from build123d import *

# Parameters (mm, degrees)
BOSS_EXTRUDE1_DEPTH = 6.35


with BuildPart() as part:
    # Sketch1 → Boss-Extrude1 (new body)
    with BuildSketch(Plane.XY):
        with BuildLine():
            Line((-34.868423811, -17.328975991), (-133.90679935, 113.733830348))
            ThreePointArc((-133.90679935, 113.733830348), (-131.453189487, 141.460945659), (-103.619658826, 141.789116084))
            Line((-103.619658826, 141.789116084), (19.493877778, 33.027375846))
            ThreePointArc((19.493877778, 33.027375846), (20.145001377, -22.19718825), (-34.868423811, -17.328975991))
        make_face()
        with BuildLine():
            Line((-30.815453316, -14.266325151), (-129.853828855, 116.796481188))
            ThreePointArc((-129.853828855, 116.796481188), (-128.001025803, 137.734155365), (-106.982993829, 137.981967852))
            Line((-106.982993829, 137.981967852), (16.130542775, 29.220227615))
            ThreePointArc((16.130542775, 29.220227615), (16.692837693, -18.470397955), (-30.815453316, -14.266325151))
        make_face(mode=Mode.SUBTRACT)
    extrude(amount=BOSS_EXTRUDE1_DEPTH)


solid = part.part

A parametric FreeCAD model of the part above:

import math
import FreeCAD as App
import Part
import Sketcher
from FreeCAD import Vector
Q = App.Units.Quantity

doc = App.newDocument("Part")
body = doc.addObject("PartDesign::Body", "Body")

# Sketch on XY plane
sketch1 = body.newObject("Sketcher::SketchObject", "Sketch")
sketch1.AttachmentSupport = (doc.getObject("XY_Plane"), [""])
sketch1.MapMode = "FlatFace"
sketch1.addGeometry(Part.LineSegment(Vector(-134, 114, 0), Vector(-35, -17, 0)), False)
sketch1.addGeometry(Part.ArcOfCircle(Part.Circle(Vector(-5, 5, 0), Vector(0, 0, 1), 37), math.radians(-143), math.radians(49)), False)
sketch1.addGeometry(Part.LineSegment(Vector(19, 33, 0), Vector(-104, 142, 0)), False)
sketch1.addGeometry(Part.ArcOfCircle(Part.Circle(Vector(-117, 126, 0), Vector(0, 0, 1), 21), math.radians(49), math.radians(217)), False)
sketch1.addGeometry(Part.LineSegment(Vector(-31, -14, 0), Vector(-130, 117, 0)), False)
sketch1.addGeometry(Part.ArcOfCircle(Part.Circle(Vector(-117, 126, 0), Vector(0, 0, 1), 16), math.radians(49), math.radians(217)), False)
sketch1.addGeometry(Part.LineSegment(Vector(-107, 138, 0), Vector(16, 29, 0)), False)
sketch1.addGeometry(Part.ArcOfCircle(Part.Circle(Vector(-5, 5, 0), Vector(0, 0, 1), 32), math.radians(-143), math.radians(49)), False)
sketch1.addConstraint(Sketcher.Constraint("Tangent", 0, 2, 1, 1))
sketch1.addConstraint(Sketcher.Constraint("Tangent", 1, 2, 2, 1))
sketch1.addConstraint(Sketcher.Constraint("Tangent", 2, 2, 3, 1))
sketch1.addConstraint(Sketcher.Constraint("Tangent", 3, 2, 0, 1))
sketch1.addConstraint(Sketcher.Constraint("Tangent", 4, 2, 5, 2))
sketch1.addConstraint(Sketcher.Constraint("Tangent", 5, 1, 6, 1))
sketch1.addConstraint(Sketcher.Constraint("Tangent", 6, 2, 7, 2))
sketch1.addConstraint(Sketcher.Constraint("Tangent", 7, 1, 4, 1))
sketch1.addConstraint(Sketcher.Constraint("Coincident", 5, 3, 3, 3))
sketch1.addConstraint(Sketcher.Constraint("Coincident", 7, 3, 1, 3))
sketch1.addConstraint(Sketcher.Constraint("Parallel", 0, 4))
sketch1.addConstraint(Sketcher.Constraint("Radius", 3, Q("20.746 mm")))
sketch1.addConstraint(Sketcher.Constraint("Radius", 5, Q("15.666 mm")))
sketch1.addConstraint(Sketcher.Constraint("Radius", 1, Q("37.236936 mm")))
sketch1.addConstraint(Sketcher.Constraint("DistanceX", 3, 2, -1, 1, Q("133.906799 mm")))
sketch1.addConstraint(Sketcher.Constraint("DistanceX", 0, 2, 7, 3, Q("29.708701 mm")))
sketch1.addConstraint(Sketcher.Constraint("Distance", 0, Q("164.274341 mm")))
sketch1.addConstraint(Sketcher.Constraint("DistanceY", -1, 1, 3, 2, Q("113.73383 mm")))
pad1 = body.newObject("PartDesign::Pad", "Pad")
pad1.Profile = sketch1
pad1.Length = Q("0.25 in")

doc.recompute()
